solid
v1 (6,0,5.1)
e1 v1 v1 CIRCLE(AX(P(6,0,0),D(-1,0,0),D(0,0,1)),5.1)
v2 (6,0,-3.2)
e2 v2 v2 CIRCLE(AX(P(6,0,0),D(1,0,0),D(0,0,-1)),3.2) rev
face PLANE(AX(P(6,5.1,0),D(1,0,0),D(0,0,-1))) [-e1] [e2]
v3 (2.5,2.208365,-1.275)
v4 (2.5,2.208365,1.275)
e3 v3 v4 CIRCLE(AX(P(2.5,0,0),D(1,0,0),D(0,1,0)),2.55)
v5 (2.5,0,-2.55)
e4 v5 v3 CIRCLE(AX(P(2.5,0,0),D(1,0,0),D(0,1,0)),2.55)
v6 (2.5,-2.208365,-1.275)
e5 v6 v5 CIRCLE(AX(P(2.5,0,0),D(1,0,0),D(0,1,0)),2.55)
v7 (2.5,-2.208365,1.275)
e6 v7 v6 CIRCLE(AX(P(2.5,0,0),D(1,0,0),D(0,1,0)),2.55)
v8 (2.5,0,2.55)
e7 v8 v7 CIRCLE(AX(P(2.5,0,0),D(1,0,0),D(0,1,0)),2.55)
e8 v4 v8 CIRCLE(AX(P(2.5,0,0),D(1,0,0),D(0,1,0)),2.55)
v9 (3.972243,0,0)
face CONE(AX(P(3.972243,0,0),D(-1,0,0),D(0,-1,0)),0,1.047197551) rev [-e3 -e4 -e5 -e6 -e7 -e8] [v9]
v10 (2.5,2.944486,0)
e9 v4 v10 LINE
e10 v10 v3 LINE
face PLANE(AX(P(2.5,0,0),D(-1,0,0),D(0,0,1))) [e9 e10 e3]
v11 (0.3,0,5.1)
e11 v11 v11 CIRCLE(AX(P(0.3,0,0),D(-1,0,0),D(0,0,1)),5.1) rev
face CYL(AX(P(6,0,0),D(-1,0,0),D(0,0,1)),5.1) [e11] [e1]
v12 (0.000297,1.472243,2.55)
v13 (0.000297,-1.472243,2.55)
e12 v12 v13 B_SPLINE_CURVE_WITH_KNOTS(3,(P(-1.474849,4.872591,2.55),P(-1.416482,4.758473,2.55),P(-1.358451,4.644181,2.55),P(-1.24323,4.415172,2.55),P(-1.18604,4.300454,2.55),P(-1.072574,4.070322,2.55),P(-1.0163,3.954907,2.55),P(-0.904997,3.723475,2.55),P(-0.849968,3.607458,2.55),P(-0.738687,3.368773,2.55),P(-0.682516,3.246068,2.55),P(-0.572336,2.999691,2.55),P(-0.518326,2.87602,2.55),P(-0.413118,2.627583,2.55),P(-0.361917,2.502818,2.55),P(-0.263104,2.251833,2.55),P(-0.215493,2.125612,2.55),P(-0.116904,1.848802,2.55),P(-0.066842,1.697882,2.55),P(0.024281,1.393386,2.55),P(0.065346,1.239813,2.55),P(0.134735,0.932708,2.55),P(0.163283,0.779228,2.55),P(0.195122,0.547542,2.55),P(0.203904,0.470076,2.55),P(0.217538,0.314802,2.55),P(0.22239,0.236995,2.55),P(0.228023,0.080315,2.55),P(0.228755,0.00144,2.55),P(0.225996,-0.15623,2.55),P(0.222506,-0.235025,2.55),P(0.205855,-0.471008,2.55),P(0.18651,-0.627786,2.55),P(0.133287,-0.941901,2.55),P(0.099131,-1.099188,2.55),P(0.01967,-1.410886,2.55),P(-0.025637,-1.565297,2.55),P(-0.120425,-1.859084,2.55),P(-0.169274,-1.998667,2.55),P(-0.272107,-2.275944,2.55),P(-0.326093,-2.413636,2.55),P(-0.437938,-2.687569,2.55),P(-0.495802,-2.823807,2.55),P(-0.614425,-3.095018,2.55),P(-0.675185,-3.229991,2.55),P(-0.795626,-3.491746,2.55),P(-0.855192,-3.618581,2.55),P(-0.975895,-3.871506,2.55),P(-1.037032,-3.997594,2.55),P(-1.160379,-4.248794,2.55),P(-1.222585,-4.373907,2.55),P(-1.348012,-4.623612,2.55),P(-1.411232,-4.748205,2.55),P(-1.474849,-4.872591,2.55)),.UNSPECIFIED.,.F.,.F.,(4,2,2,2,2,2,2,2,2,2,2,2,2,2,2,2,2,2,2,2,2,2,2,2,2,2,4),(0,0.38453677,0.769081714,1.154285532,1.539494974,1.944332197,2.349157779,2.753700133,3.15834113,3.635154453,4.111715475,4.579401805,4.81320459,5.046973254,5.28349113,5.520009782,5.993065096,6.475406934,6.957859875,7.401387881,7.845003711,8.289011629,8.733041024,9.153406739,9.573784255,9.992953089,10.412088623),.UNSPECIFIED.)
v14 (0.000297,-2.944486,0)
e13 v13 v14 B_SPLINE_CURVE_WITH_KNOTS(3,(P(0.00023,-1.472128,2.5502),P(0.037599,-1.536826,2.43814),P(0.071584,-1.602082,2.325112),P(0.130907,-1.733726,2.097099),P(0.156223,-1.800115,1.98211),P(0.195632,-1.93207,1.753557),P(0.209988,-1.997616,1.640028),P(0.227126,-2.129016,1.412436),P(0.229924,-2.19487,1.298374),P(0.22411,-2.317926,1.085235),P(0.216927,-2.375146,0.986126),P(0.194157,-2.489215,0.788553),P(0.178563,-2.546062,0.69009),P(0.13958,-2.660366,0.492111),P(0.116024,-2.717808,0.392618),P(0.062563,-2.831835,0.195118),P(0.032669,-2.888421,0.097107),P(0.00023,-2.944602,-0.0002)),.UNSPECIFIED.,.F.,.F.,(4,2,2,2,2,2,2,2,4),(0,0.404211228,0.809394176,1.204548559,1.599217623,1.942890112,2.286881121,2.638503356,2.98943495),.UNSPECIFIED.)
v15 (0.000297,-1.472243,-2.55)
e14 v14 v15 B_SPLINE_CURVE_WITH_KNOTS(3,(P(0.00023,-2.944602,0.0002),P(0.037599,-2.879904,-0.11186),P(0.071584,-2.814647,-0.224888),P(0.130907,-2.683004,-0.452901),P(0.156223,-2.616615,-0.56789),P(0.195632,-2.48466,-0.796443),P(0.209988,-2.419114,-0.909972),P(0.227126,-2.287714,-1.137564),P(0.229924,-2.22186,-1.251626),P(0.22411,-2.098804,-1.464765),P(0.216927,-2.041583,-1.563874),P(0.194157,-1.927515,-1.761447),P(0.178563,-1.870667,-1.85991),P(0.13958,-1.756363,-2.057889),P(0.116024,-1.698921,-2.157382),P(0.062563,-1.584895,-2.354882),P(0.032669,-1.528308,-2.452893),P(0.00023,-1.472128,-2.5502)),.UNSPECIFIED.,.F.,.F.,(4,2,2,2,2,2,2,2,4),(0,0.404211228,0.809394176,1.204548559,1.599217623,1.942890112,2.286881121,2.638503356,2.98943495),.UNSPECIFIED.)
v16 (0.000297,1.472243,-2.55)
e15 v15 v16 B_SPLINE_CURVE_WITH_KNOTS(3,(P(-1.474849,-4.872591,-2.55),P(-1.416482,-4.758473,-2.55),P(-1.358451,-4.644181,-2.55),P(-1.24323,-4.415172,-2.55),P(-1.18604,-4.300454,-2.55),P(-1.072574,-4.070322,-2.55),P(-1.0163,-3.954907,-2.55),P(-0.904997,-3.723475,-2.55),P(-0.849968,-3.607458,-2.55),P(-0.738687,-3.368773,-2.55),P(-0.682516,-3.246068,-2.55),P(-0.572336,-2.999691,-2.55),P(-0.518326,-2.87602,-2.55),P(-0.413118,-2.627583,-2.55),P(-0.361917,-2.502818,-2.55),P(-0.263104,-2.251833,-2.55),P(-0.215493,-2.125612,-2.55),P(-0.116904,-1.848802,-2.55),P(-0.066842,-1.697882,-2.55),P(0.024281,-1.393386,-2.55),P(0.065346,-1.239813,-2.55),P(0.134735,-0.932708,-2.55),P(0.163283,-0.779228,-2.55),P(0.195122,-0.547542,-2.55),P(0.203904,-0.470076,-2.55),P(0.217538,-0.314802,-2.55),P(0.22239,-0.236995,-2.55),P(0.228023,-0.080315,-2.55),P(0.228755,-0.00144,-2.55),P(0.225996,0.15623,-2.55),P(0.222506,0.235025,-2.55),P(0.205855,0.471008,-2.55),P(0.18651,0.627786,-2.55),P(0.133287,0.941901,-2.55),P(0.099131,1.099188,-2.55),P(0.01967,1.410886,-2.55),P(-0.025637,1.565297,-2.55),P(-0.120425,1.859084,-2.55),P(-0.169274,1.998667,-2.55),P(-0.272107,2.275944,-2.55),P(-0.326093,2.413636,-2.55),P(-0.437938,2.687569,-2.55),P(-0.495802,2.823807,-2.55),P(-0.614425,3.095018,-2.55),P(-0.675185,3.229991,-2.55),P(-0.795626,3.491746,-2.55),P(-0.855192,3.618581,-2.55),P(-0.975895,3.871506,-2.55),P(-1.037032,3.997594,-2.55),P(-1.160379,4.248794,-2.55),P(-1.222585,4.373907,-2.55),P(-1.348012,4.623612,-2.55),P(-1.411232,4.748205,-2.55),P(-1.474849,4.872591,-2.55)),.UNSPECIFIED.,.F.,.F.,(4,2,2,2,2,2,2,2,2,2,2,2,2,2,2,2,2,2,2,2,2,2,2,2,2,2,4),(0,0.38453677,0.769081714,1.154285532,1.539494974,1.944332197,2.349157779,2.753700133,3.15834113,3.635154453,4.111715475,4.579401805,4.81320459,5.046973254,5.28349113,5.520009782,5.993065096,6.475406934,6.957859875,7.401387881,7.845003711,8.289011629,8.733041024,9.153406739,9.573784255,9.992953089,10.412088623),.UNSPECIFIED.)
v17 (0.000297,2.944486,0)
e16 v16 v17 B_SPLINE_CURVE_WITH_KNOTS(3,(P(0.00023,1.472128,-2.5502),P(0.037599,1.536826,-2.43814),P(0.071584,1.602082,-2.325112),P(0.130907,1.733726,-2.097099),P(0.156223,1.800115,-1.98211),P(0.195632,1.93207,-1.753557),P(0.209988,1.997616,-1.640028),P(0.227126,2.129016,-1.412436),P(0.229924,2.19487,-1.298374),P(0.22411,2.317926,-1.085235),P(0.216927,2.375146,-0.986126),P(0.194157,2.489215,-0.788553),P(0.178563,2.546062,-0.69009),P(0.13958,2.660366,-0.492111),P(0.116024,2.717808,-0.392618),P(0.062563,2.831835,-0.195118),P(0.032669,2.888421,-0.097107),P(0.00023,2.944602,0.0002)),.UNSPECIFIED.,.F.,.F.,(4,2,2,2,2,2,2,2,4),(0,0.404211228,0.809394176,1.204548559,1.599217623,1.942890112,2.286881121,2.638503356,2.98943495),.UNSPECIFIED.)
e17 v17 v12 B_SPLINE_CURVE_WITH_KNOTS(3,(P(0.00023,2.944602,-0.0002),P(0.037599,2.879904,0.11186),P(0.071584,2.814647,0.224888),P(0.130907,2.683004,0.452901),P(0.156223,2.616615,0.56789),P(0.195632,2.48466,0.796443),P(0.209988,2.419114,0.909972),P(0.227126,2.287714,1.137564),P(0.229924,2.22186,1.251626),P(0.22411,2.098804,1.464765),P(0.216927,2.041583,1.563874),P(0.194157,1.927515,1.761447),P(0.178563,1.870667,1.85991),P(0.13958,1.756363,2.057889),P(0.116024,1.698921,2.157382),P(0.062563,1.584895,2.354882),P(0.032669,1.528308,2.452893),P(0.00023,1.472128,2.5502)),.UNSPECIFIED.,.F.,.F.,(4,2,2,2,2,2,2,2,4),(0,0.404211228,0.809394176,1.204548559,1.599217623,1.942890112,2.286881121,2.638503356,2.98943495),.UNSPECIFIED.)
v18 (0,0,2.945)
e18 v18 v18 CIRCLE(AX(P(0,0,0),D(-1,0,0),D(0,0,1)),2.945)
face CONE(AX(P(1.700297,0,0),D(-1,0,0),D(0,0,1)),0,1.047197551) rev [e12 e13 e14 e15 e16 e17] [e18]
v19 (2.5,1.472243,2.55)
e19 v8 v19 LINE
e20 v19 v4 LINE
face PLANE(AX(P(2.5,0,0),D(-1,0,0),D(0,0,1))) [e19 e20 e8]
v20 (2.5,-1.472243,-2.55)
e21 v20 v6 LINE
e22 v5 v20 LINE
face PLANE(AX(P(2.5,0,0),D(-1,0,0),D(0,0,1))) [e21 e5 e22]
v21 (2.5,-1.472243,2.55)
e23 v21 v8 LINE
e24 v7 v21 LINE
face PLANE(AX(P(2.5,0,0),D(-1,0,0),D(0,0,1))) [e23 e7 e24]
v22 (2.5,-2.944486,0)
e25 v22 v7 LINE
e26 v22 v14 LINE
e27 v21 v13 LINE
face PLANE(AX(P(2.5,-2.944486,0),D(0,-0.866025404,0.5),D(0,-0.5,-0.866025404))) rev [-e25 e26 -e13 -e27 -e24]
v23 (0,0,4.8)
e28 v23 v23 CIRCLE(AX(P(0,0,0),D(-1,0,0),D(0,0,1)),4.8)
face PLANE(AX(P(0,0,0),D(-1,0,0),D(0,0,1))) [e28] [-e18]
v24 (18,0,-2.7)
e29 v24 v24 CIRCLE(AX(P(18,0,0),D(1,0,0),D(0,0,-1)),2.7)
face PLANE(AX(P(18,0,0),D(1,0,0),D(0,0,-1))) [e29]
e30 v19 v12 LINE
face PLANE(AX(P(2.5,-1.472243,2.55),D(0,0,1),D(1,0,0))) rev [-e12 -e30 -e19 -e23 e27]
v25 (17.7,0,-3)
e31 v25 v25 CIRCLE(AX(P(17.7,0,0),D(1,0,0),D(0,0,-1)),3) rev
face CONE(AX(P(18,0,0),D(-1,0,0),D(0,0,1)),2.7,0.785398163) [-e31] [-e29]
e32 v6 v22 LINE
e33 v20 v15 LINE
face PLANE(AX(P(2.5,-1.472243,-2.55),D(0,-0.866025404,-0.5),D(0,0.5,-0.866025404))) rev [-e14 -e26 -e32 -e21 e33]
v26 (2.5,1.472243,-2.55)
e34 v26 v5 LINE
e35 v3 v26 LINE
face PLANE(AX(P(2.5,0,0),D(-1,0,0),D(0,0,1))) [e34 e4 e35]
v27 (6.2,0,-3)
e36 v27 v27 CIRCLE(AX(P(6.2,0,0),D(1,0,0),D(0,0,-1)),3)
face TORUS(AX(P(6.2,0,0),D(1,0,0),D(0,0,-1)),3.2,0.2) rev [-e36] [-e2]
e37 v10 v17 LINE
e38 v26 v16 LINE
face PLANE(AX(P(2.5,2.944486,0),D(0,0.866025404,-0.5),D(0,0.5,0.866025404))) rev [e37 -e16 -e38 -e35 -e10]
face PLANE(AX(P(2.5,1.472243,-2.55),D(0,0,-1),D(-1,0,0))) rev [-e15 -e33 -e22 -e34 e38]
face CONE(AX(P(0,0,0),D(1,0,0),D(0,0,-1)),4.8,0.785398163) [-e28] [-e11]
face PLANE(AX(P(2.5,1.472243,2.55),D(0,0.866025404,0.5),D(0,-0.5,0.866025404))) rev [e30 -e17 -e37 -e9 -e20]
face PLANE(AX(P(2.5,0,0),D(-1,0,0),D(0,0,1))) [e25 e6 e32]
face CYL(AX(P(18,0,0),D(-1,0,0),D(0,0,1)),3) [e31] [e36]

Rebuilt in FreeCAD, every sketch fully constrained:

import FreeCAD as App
import Part
import Sketcher

V = App.Vector
Q = App.Units.Quantity


def edges_at(feature, points):
    """Names of the edges that pass closest to the given points."""
    edges = feature.Shape.Edges
    near = lambda p: min(range(len(edges)), key=lambda i: edges[i].distToShape(Part.Vertex(*p))[0])
    return sorted({f"Edge{near(p) + 1}" for p in points})


def add_polygon(sketch, points):
    """Adds a closed chain of lines whose ends are joined by coincident constraints."""
    first, n = sketch.GeometryCount, len(points)
    for a, b in zip(points, points[1:] + points[:1]):
        sketch.addGeometry(Part.LineSegment(App.Vector(*a, 0), App.Vector(*b, 0)), False)
    for i in range(n):
        sketch.addConstraint(Sketcher.Constraint("Coincident", first + i, 2, first + (i + 1) % n, 1))

doc = App.newDocument("Part")
body = doc.addObject("PartDesign::Body", "Body")

sketch1 = body.newObject("Sketcher::SketchObject", "Sketch")
sketch1.AttachmentSupport = (doc.getObject("XY_Plane"), [""])
sketch1.MapMode = "FlatFace"
add_polygon(sketch1, [(6, 5), (6, 0), (0, 0), (0, 5)])
sketch1.addConstraint([
    Sketcher.Constraint("Vertical", 0),
    Sketcher.Constraint("Horizontal", 1),
    Sketcher.Constraint("Vertical", 2),
    Sketcher.Constraint("Horizontal", 3),
    Sketcher.Constraint("Coincident", 1, 2, -1, 1),
    Sketcher.Constraint("DistanceX", 1, 2, 1, 1, 6.0),
    Sketcher.Constraint("DistanceY", 0, 2, 0, 1, 5.1),
])
revolution = body.newObject("PartDesign::Revolution", "Revolution")
revolution.Profile = sketch1
revolution.ReferenceAxis = (sketch1, ["H_Axis"])
revolution.Angle = 360

sketch2 = body.newObject("Sketcher::SketchObject", "Sketch001")
sketch2.AttachmentSupport = (doc.getObject("YZ_Plane"), [""])
sketch2.MapMode = "FlatFace"
sketch2.AttachmentOffset = App.Placement(V(0, 0, 6), App.Rotation())
sketch2.addGeometry(Part.Circle(V(0, 0, 0), V(0, 0, 1), 3), False)
sketch2.addConstraint([
    Sketcher.Constraint("Coincident", 0, 3, -1, 1),
    Sketcher.Constraint("Diameter", 0, 6.0),
])
pad1 = body.newObject("PartDesign::Pad", "Pad")
pad1.Profile = sketch2
pad1.Length = 12

sketch3 = body.newObject("Sketcher::SketchObject", "Sketch002")
sketch3.AttachmentSupport = (doc.getObject("YZ_Plane"), [""])
sketch3.MapMode = "FlatFace"
add_polygon(sketch3, [(2.9, 0), (1.5, -2.5), (-1.5, -2.5), (-2.9, 0), (-1.5, 2.5), (1.5, 2.5)])
sketch3.addConstraint([
    Sketcher.Constraint("Horizontal", 1),
    Sketcher.Constraint("Horizontal", 4),
    Sketcher.Constraint("Symmetric", 0, 2, 3, 2, -1, 1),
    Sketcher.Constraint("Symmetric", 2, 2, 5, 2, -1, 1),
    Sketcher.Constraint("PointOnObject", 2, 2, -1),
    Sketcher.Constraint("Parallel", 2, 5),
    Sketcher.Constraint("Vertical", 1, 2, 3, 2),
    Sketcher.Constraint("Angle", 0, Q("-120 deg")),
    Sketcher.Constraint("DistanceY", 1, 2, 3, 2, 5.1),
    Sketcher.Constraint("DistanceX", 1, 2, 1, 1, 2.944486),
])
pocket1 = body.newObject("PartDesign::Pocket", "Pocket")
pocket1.Profile = sketch3
pocket1.Length = 2.5
pocket1.Reversed = True

sketch4 = body.newObject("Sketcher::SketchObject", "Sketch003")
sketch4.AttachmentSupport = (doc.getObject("XY_Plane"), [""])
sketch4.MapMode = "FlatFace"
add_polygon(sketch4, [(2.5, 2.5), (2.5, 0), (4, 0)])
sketch4.addConstraint([
    Sketcher.Constraint("Vertical", 0),
    Sketcher.Constraint("Horizontal", 1),
    Sketcher.Constraint("PointOnObject", 0, 2, -1),
    Sketcher.Constraint("Angle", 2, Q("120 deg")),
    Sketcher.Constraint("DistanceY", 0, 2, 0, 1, 2.55),
    Sketcher.Constraint("DistanceX", -1, 1, 0, 2, 2.5),
])
groove = body.newObject("PartDesign::Groove", "Groove")
groove.Profile = sketch4
groove.ReferenceAxis = (sketch4, ["H_Axis"])
groove.Angle = 360
doc.recompute()

chamfer = body.newObject("PartDesign::Chamfer", "Chamfer")
chamfer.Base = (groove, edges_at(groove, [(18, 0, 3), (0, 0, -5.1)]))
chamfer.Size = 0.3
doc.recompute()

fillet = body.newObject("PartDesign::Fillet", "Fillet")
fillet.Base = (chamfer, edges_at(chamfer, [(6, 0, 3)]))
fillet.Radius = 0.2

sketch5 = body.newObject("Sketcher::SketchObject", "Sketch004")
sketch5.AttachmentSupport = (doc.getObject("XZ_Plane"), [""])
sketch5.MapMode = "FlatFace"
add_polygon(sketch5, [(1.7, 0), (0, -2.9), (0, 0)])
sketch5.addConstraint([
    Sketcher.Constraint("Vertical", 1),
    Sketcher.Constraint("Horizontal", 2),
    Sketcher.Constraint("Coincident", 1, 2, -1, 1),
    Sketcher.Constraint("Angle", 0, Q("-120 deg")),
    Sketcher.Constraint("DistanceY", 1, 1, 1, 2, 2.945),
])
groove2 = body.newObject("PartDesign::Groove", "Groove001")
groove2.Profile = sketch5
groove2.ReferenceAxis = (sketch5, ["H_Axis"])
groove2.Angle = 360

doc.recompute()
